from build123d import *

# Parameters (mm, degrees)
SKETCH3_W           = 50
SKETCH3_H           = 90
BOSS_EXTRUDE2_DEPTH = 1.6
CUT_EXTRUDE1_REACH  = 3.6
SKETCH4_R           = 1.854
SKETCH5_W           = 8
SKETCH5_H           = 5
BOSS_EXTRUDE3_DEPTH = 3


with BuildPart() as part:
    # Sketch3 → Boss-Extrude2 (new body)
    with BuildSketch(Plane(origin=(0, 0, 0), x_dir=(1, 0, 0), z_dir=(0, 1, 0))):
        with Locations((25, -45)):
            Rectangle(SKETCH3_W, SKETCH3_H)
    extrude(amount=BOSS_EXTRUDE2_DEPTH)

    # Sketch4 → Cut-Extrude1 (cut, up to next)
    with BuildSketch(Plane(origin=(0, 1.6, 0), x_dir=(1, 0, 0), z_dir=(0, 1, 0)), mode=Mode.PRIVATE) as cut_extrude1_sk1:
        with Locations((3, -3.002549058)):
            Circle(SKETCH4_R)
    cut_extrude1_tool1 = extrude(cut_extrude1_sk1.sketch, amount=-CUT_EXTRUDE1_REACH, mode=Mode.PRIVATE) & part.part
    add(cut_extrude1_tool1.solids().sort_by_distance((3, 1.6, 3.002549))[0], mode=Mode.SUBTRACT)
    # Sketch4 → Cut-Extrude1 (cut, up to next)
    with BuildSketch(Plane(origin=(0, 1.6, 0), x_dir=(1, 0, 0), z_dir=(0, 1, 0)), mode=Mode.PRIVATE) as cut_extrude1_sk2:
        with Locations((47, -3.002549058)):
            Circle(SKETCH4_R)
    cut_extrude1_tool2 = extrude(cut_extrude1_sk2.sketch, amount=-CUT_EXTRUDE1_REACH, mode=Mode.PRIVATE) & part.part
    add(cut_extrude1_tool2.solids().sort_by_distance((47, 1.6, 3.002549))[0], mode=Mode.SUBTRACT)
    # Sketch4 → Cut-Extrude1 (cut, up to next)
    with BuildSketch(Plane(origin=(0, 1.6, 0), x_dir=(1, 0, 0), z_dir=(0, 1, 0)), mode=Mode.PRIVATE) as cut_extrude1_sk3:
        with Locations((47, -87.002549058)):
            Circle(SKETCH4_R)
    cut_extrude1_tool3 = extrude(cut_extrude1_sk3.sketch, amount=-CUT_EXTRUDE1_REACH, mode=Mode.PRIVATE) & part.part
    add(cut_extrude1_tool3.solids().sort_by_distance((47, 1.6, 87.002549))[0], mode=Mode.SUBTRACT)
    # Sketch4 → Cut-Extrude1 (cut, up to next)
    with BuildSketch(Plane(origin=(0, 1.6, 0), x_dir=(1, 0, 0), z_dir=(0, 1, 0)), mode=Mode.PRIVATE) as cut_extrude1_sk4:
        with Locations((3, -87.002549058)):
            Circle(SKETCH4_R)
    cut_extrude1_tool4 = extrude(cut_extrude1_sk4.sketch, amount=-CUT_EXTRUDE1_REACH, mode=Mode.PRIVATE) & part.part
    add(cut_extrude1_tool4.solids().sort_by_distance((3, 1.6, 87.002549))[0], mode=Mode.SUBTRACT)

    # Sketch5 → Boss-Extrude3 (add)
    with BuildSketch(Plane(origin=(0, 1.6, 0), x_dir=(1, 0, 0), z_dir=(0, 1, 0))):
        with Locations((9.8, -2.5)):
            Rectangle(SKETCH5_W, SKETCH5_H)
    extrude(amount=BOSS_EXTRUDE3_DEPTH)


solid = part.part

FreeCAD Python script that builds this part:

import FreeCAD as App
import Part
import Sketcher
from FreeCAD import Vector
Q = App.Units.Quantity


def add_polygon(sketch, points):
    """Adds a closed chain of lines whose ends are joined by coincident constraints."""
    first, n = sketch.GeometryCount, len(points)
    for a, b in zip(points, points[1:] + points[:1]):
        sketch.addGeometry(Part.LineSegment(App.Vector(*a, 0), App.Vector(*b, 0)), False)
    for i in range(n):
        sketch.addConstraint(Sketcher.Constraint("Coincident", first + i, 2, first + (i + 1) % n, 1))

doc = App.newDocument("Part")
body = doc.addObject("PartDesign::Body", "Body")

sketch1 = body.newObject("Sketcher::SketchObject", "Sketch")
sketch1.AttachmentSupport = (doc.getObject("XZ_Plane"), [""])
sketch1.MapMode = "FlatFace"
add_polygon(sketch1, [(0, 0), (0, 90), (50, 90), (50, 0)])
sketch1.addConstraint([
    Sketcher.Constraint("Vertical", 0),
    Sketcher.Constraint("Horizontal", 1),
    Sketcher.Constraint("Vertical", 2),
    Sketcher.Constraint("Horizontal", 3),
    Sketcher.Constraint("Coincident", 3, 2, -1, 1),
    Sketcher.Constraint("DistanceX", 1, 1, 1, 2, Q("50 mm")),
    Sketcher.Constraint("DistanceY", 0, 1, 0, 2, Q("90 mm")),
])
pad1 = body.newObject("PartDesign::Pad", "Pad")
pad1.Profile = sketch1
pad1.Length = 1.6
pad1.Reversed = True

sketch2 = body.newObject("Sketcher::SketchObject", "Sketch001")
sketch2.AttachmentSupport = (doc.getObject("XZ_Plane"), [""])
sketch2.MapMode = "FlatFace"
sketch2.AttachmentOffset = App.Placement(Vector(0, 0, -1.6), App.Rotation())
sketch2.addGeometry(Part.Circle(Vector(3, 3.002549, 0), Vector(0, 0, 1), 1.854), False)
sketch2.addConstraint([
    Sketcher.Constraint("Diameter", 0, Q("3.708 mm")),
    Sketcher.Constraint("DistanceX", -1, 1, 0, 3, Q("3 mm")),
    Sketcher.Constraint("DistanceY", -1, 1, 0, 3, Q("3.002549 mm")),
])
pocket1 = body.newObject("PartDesign::Pocket", "Pocket")
pocket1.Profile = sketch2
pocket1.Type = "UpToFirst"
pocket1.Reversed = True

sketch3 = body.newObject("Sketcher::SketchObject", "Sketch002")
sketch3.AttachmentSupport = (doc.getObject("XZ_Plane"), [""])
sketch3.MapMode = "FlatFace"
sketch3.AttachmentOffset = App.Placement(Vector(0, 0, -1.6), App.Rotation())
sketch3.addGeometry(Part.Circle(Vector(47, 3.002549, 0), Vector(0, 0, 1), 1.854), False)
sketch3.addConstraint([
    Sketcher.Constraint("Diameter", 0, Q("3.708 mm")),
    Sketcher.Constraint("DistanceX", -1, 1, 0, 3, Q("47 mm")),
    Sketcher.Constraint("DistanceY", -1, 1, 0, 3, Q("3.002549 mm")),
])
pocket2 = body.newObject("PartDesign::Pocket", "Pocket001")
pocket2.Profile = sketch3
pocket2.Type = "UpToFirst"
pocket2.Reversed = True

sketch4 = body.newObject("Sketcher::SketchObject", "Sketch003")
sketch4.AttachmentSupport = (doc.getObject("XZ_Plane"), [""])
sketch4.MapMode = "FlatFace"
sketch4.AttachmentOffset = App.Placement(Vector(0, 0, -1.6), App.Rotation())
sketch4.addGeometry(Part.Circle(Vector(47, 87.002549, 0), Vector(0, 0, 1), 1.854), False)
sketch4.addConstraint([
    Sketcher.Constraint("Diameter", 0, Q("3.708 mm")),
    Sketcher.Constraint("DistanceX", -1, 1, 0, 3, Q("47 mm")),
    Sketcher.Constraint("DistanceY", -1, 1, 0, 3, Q("87.002549 mm")),
])
pocket3 = body.newObject("PartDesign::Pocket", "Pocket002")
pocket3.Profile = sketch4
pocket3.Type = "UpToFirst"
pocket3.Reversed = True

sketch5 = body.newObject("Sketcher::SketchObject", "Sketch004")
sketch5.AttachmentSupport = (doc.getObject("XZ_Plane"), [""])
sketch5.MapMode = "FlatFace"
sketch5.AttachmentOffset = App.Placement(Vector(0, 0, -1.6), App.Rotation())
sketch5.addGeometry(Part.Circle(Vector(3, 87.002549, 0), Vector(0, 0, 1), 1.854), False)
sketch5.addConstraint([
    Sketcher.Constraint("Diameter", 0, Q("3.708 mm")),
    Sketcher.Constraint("DistanceX", -1, 1, 0, 3, Q("3 mm")),
    Sketcher.Constraint("DistanceY", -1, 1, 0, 3, Q("87.002549 mm")),
])
pocket4 = body.newObject("PartDesign::Pocket", "Pocket003")
pocket4.Profile = sketch5
pocket4.Type = "UpToFirst"
pocket4.Reversed = True

sketch6 = body.newObject("Sketcher::SketchObject", "Sketch005")
sketch6.AttachmentSupport = (doc.getObject("XZ_Plane"), [""])
sketch6.MapMode = "FlatFace"
sketch6.AttachmentOffset = App.Placement(Vector(0, 0, -1.6), App.Rotation())
add_polygon(sketch6, [(5.8, 0), (5.8, 5), (13.8, 5), (13.8, 0)])
sketch6.addConstraint([
    Sketcher.Constraint("Vertical", 0),
    Sketcher.Constraint("Horizontal", 1),
    Sketcher.Constraint("Vertical", 2),
    Sketcher.Constraint("Horizontal", 3),
    Sketcher.Constraint("PointOnObject", 2, 2, -1),
    Sketcher.Constraint("DistanceX", 1, 1, 1, 2, Q("8 mm")),
    Sketcher.Constraint("DistanceY", 0, 1, 0, 2, Q("5 mm")),
    Sketcher.Constraint("DistanceX", -1, 1, 0, 2, Q("5.8 mm")),
])
pad2 = body.newObject("PartDesign::Pad", "Pad001")
pad2.Profile = sketch6
pad2.Length = 3
pad2.Reversed = True

doc.recompute()
